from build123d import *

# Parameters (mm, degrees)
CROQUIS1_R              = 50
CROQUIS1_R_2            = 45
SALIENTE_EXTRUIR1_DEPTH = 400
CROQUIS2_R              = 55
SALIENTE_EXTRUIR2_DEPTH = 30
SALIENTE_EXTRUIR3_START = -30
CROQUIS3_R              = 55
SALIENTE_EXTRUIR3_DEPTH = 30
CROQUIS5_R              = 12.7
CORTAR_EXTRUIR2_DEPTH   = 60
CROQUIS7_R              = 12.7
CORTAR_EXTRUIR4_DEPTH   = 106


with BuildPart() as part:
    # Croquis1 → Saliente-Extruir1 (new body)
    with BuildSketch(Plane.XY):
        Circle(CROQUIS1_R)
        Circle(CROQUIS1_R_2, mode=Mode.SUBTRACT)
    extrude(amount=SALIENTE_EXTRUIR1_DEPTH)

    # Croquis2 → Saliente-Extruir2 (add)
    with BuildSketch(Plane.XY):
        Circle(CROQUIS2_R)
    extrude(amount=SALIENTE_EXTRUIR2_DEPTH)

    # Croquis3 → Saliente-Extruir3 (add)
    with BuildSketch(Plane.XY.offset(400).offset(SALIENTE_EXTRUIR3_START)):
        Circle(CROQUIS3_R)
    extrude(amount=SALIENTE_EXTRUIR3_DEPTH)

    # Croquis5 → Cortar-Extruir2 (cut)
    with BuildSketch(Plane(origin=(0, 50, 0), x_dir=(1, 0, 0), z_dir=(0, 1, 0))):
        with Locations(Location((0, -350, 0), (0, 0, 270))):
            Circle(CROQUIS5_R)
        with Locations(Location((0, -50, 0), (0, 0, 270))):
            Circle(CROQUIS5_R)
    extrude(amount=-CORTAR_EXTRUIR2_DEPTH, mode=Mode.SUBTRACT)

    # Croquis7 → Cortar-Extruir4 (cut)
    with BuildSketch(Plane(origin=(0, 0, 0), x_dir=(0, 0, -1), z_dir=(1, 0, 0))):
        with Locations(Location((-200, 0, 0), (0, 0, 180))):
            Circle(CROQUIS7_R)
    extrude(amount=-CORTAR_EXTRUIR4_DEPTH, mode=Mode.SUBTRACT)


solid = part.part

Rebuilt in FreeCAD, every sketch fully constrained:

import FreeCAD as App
import Part
import Sketcher

V = App.Vector

doc = App.newDocument("Part")
params = doc.addObject("Spreadsheet::Sheet", "Params")
for row, (alias, value) in enumerate([
    ("sketch1_diameter", "100 mm"),
    ("sketch1_diameter2", "90 mm"),
    ("pad1_length", "400 mm"),
    ("sketch2_diameter", "110 mm"),
    ("pad2_length", "30 mm"),
    ("sketch3_diameter", "110 mm"),
    ("pad3_length", "30 mm"),
    ("sketch4_diameter", "25.4 mm"),
    ("pocket1_length", "60 mm"),
    ("sketch5_diameter", "25.4 mm"),
    ("pocket2_length", "106 mm"),
], start=1):
    params.set(f"A{row}", alias)
    params.set(f"B{row}", "=" + value)
    params.setAlias(f"B{row}", alias)

body = doc.addObject("PartDesign::Body", "Body")

# Sketch on XY plane
sketch1 = body.newObject("Sketcher::SketchObject", "Sketch")
sketch1.AttachmentSupport = (doc.getObject("XY_Plane"), [""])
sketch1.MapMode = "FlatFace"
sketch1.addGeometry([
    Part.Circle(V(0, 0, 0), V(0, 0, 1), 50),
    Part.Circle(V(0, 0, 0), V(0, 0, 1), 45),
], False)
sketch1.addConstraint([
    Sketcher.Constraint("Coincident", 0, 3, -1, 1),
    Sketcher.Constraint("Coincident", 1, 3, -1, 1),
    Sketcher.Constraint("Diameter", 0, 100.0),
    Sketcher.Constraint("Diameter", 1, 90.0),
])
sketch1.setExpression("Constraints[2]", "Params.sketch1_diameter")
sketch1.setExpression("Constraints[3]", "Params.sketch1_diameter2")
pad1 = body.newObject("PartDesign::Pad", "Pad")
pad1.Profile = sketch1
pad1.setExpression("Length", "Params.pad1_length")

# Sketch on XY plane
sketch2 = body.newObject("Sketcher::SketchObject", "Sketch001")
sketch2.AttachmentSupport = (doc.getObject("XY_Plane"), [""])
sketch2.MapMode = "FlatFace"
sketch2.addGeometry(Part.Circle(V(0, 0, 0), V(0, 0, 1), 55), False)
sketch2.addConstraint([
    Sketcher.Constraint("Coincident", 0, 3, -1, 1),
    Sketcher.Constraint("Diameter", 0, 110.0),
])
sketch2.setExpression("Constraints[1]", "Params.sketch2_diameter")
pad2 = body.newObject("PartDesign::Pad", "Pad001")
pad2.Profile = sketch2
pad2.setExpression("Length", "Params.pad2_length")

# Sketch on XY plane
sketch3 = body.newObject("Sketcher::SketchObject", "Sketch002")
sketch3.AttachmentSupport = (doc.getObject("XY_Plane"), [""])
sketch3.MapMode = "FlatFace"
sketch3.AttachmentOffset = App.Placement(V(0, 0, 370), App.Rotation())
sketch3.addGeometry(Part.Circle(V(0, 0, 0), V(0, 0, 1), 55), False)
sketch3.addConstraint([
    Sketcher.Constraint("Coincident", 0, 3, -1, 1),
    Sketcher.Constraint("Diameter", 0, 110.0),
])
sketch3.setExpression("Constraints[1]", "Params.sketch3_diameter")
pad3 = body.newObject("PartDesign::Pad", "Pad002")
pad3.Profile = sketch3
pad3.setExpression("Length", "Params.pad3_length")

# Sketch on XZ plane
sketch4 = body.newObject("Sketcher::SketchObject", "Sketch003")
sketch4.AttachmentSupport = (doc.getObject("XZ_Plane"), [""])
sketch4.MapMode = "FlatFace"
sketch4.AttachmentOffset = App.Placement(V(0, 0, -50), App.Rotation())
sketch4.addGeometry([
    Part.Circle(V(0, 350, 0), V(0, 0, 1), 13),
    Part.Circle(V(0, 50, 0), V(0, 0, 1), 13),
], False)
sketch4.addConstraint([
    Sketcher.Constraint("Equal", 0, 1),
    Sketcher.Constraint("PointOnObject", 0, 3, -2),
    Sketcher.Constraint("PointOnObject", 1, 3, -2),
    Sketcher.Constraint("Diameter", 0, 25.4),
    Sketcher.Constraint("DistanceY", -1, 1, 0, 3, 350.0),
    Sketcher.Constraint("DistanceY", -1, 1, 1, 3, 50.0),
])
sketch4.setExpression("Constraints[3]", "Params.sketch4_diameter")
pocket1 = body.newObject("PartDesign::Pocket", "Pocket")
pocket1.Profile = sketch4
pocket1.setExpression("Length", "Params.pocket1_length")
pocket1.Reversed = True

# Sketch on YZ plane
sketch5 = body.newObject("Sketcher::SketchObject", "Sketch004")
sketch5.AttachmentSupport = (doc.getObject("YZ_Plane"), [""])
sketch5.MapMode = "FlatFace"
sketch5.addGeometry(Part.Circle(V(0, 200, 0), V(0, 0, 1), 13), False)
sketch5.addConstraint([
    Sketcher.Constraint("PointOnObject", 0, 3, -2),
    Sketcher.Constraint("Diameter", 0, 25.4),
    Sketcher.Constraint("DistanceY", -1, 1, 0, 3, 200.0),
])
sketch5.setExpression("Constraints[1]", "Params.sketch5_diameter")
pocket2 = body.newObject("PartDesign::Pocket", "Pocket001")
pocket2.Profile = sketch5
pocket2.setExpression("Length", "Params.pocket2_length")

doc.recompute()
